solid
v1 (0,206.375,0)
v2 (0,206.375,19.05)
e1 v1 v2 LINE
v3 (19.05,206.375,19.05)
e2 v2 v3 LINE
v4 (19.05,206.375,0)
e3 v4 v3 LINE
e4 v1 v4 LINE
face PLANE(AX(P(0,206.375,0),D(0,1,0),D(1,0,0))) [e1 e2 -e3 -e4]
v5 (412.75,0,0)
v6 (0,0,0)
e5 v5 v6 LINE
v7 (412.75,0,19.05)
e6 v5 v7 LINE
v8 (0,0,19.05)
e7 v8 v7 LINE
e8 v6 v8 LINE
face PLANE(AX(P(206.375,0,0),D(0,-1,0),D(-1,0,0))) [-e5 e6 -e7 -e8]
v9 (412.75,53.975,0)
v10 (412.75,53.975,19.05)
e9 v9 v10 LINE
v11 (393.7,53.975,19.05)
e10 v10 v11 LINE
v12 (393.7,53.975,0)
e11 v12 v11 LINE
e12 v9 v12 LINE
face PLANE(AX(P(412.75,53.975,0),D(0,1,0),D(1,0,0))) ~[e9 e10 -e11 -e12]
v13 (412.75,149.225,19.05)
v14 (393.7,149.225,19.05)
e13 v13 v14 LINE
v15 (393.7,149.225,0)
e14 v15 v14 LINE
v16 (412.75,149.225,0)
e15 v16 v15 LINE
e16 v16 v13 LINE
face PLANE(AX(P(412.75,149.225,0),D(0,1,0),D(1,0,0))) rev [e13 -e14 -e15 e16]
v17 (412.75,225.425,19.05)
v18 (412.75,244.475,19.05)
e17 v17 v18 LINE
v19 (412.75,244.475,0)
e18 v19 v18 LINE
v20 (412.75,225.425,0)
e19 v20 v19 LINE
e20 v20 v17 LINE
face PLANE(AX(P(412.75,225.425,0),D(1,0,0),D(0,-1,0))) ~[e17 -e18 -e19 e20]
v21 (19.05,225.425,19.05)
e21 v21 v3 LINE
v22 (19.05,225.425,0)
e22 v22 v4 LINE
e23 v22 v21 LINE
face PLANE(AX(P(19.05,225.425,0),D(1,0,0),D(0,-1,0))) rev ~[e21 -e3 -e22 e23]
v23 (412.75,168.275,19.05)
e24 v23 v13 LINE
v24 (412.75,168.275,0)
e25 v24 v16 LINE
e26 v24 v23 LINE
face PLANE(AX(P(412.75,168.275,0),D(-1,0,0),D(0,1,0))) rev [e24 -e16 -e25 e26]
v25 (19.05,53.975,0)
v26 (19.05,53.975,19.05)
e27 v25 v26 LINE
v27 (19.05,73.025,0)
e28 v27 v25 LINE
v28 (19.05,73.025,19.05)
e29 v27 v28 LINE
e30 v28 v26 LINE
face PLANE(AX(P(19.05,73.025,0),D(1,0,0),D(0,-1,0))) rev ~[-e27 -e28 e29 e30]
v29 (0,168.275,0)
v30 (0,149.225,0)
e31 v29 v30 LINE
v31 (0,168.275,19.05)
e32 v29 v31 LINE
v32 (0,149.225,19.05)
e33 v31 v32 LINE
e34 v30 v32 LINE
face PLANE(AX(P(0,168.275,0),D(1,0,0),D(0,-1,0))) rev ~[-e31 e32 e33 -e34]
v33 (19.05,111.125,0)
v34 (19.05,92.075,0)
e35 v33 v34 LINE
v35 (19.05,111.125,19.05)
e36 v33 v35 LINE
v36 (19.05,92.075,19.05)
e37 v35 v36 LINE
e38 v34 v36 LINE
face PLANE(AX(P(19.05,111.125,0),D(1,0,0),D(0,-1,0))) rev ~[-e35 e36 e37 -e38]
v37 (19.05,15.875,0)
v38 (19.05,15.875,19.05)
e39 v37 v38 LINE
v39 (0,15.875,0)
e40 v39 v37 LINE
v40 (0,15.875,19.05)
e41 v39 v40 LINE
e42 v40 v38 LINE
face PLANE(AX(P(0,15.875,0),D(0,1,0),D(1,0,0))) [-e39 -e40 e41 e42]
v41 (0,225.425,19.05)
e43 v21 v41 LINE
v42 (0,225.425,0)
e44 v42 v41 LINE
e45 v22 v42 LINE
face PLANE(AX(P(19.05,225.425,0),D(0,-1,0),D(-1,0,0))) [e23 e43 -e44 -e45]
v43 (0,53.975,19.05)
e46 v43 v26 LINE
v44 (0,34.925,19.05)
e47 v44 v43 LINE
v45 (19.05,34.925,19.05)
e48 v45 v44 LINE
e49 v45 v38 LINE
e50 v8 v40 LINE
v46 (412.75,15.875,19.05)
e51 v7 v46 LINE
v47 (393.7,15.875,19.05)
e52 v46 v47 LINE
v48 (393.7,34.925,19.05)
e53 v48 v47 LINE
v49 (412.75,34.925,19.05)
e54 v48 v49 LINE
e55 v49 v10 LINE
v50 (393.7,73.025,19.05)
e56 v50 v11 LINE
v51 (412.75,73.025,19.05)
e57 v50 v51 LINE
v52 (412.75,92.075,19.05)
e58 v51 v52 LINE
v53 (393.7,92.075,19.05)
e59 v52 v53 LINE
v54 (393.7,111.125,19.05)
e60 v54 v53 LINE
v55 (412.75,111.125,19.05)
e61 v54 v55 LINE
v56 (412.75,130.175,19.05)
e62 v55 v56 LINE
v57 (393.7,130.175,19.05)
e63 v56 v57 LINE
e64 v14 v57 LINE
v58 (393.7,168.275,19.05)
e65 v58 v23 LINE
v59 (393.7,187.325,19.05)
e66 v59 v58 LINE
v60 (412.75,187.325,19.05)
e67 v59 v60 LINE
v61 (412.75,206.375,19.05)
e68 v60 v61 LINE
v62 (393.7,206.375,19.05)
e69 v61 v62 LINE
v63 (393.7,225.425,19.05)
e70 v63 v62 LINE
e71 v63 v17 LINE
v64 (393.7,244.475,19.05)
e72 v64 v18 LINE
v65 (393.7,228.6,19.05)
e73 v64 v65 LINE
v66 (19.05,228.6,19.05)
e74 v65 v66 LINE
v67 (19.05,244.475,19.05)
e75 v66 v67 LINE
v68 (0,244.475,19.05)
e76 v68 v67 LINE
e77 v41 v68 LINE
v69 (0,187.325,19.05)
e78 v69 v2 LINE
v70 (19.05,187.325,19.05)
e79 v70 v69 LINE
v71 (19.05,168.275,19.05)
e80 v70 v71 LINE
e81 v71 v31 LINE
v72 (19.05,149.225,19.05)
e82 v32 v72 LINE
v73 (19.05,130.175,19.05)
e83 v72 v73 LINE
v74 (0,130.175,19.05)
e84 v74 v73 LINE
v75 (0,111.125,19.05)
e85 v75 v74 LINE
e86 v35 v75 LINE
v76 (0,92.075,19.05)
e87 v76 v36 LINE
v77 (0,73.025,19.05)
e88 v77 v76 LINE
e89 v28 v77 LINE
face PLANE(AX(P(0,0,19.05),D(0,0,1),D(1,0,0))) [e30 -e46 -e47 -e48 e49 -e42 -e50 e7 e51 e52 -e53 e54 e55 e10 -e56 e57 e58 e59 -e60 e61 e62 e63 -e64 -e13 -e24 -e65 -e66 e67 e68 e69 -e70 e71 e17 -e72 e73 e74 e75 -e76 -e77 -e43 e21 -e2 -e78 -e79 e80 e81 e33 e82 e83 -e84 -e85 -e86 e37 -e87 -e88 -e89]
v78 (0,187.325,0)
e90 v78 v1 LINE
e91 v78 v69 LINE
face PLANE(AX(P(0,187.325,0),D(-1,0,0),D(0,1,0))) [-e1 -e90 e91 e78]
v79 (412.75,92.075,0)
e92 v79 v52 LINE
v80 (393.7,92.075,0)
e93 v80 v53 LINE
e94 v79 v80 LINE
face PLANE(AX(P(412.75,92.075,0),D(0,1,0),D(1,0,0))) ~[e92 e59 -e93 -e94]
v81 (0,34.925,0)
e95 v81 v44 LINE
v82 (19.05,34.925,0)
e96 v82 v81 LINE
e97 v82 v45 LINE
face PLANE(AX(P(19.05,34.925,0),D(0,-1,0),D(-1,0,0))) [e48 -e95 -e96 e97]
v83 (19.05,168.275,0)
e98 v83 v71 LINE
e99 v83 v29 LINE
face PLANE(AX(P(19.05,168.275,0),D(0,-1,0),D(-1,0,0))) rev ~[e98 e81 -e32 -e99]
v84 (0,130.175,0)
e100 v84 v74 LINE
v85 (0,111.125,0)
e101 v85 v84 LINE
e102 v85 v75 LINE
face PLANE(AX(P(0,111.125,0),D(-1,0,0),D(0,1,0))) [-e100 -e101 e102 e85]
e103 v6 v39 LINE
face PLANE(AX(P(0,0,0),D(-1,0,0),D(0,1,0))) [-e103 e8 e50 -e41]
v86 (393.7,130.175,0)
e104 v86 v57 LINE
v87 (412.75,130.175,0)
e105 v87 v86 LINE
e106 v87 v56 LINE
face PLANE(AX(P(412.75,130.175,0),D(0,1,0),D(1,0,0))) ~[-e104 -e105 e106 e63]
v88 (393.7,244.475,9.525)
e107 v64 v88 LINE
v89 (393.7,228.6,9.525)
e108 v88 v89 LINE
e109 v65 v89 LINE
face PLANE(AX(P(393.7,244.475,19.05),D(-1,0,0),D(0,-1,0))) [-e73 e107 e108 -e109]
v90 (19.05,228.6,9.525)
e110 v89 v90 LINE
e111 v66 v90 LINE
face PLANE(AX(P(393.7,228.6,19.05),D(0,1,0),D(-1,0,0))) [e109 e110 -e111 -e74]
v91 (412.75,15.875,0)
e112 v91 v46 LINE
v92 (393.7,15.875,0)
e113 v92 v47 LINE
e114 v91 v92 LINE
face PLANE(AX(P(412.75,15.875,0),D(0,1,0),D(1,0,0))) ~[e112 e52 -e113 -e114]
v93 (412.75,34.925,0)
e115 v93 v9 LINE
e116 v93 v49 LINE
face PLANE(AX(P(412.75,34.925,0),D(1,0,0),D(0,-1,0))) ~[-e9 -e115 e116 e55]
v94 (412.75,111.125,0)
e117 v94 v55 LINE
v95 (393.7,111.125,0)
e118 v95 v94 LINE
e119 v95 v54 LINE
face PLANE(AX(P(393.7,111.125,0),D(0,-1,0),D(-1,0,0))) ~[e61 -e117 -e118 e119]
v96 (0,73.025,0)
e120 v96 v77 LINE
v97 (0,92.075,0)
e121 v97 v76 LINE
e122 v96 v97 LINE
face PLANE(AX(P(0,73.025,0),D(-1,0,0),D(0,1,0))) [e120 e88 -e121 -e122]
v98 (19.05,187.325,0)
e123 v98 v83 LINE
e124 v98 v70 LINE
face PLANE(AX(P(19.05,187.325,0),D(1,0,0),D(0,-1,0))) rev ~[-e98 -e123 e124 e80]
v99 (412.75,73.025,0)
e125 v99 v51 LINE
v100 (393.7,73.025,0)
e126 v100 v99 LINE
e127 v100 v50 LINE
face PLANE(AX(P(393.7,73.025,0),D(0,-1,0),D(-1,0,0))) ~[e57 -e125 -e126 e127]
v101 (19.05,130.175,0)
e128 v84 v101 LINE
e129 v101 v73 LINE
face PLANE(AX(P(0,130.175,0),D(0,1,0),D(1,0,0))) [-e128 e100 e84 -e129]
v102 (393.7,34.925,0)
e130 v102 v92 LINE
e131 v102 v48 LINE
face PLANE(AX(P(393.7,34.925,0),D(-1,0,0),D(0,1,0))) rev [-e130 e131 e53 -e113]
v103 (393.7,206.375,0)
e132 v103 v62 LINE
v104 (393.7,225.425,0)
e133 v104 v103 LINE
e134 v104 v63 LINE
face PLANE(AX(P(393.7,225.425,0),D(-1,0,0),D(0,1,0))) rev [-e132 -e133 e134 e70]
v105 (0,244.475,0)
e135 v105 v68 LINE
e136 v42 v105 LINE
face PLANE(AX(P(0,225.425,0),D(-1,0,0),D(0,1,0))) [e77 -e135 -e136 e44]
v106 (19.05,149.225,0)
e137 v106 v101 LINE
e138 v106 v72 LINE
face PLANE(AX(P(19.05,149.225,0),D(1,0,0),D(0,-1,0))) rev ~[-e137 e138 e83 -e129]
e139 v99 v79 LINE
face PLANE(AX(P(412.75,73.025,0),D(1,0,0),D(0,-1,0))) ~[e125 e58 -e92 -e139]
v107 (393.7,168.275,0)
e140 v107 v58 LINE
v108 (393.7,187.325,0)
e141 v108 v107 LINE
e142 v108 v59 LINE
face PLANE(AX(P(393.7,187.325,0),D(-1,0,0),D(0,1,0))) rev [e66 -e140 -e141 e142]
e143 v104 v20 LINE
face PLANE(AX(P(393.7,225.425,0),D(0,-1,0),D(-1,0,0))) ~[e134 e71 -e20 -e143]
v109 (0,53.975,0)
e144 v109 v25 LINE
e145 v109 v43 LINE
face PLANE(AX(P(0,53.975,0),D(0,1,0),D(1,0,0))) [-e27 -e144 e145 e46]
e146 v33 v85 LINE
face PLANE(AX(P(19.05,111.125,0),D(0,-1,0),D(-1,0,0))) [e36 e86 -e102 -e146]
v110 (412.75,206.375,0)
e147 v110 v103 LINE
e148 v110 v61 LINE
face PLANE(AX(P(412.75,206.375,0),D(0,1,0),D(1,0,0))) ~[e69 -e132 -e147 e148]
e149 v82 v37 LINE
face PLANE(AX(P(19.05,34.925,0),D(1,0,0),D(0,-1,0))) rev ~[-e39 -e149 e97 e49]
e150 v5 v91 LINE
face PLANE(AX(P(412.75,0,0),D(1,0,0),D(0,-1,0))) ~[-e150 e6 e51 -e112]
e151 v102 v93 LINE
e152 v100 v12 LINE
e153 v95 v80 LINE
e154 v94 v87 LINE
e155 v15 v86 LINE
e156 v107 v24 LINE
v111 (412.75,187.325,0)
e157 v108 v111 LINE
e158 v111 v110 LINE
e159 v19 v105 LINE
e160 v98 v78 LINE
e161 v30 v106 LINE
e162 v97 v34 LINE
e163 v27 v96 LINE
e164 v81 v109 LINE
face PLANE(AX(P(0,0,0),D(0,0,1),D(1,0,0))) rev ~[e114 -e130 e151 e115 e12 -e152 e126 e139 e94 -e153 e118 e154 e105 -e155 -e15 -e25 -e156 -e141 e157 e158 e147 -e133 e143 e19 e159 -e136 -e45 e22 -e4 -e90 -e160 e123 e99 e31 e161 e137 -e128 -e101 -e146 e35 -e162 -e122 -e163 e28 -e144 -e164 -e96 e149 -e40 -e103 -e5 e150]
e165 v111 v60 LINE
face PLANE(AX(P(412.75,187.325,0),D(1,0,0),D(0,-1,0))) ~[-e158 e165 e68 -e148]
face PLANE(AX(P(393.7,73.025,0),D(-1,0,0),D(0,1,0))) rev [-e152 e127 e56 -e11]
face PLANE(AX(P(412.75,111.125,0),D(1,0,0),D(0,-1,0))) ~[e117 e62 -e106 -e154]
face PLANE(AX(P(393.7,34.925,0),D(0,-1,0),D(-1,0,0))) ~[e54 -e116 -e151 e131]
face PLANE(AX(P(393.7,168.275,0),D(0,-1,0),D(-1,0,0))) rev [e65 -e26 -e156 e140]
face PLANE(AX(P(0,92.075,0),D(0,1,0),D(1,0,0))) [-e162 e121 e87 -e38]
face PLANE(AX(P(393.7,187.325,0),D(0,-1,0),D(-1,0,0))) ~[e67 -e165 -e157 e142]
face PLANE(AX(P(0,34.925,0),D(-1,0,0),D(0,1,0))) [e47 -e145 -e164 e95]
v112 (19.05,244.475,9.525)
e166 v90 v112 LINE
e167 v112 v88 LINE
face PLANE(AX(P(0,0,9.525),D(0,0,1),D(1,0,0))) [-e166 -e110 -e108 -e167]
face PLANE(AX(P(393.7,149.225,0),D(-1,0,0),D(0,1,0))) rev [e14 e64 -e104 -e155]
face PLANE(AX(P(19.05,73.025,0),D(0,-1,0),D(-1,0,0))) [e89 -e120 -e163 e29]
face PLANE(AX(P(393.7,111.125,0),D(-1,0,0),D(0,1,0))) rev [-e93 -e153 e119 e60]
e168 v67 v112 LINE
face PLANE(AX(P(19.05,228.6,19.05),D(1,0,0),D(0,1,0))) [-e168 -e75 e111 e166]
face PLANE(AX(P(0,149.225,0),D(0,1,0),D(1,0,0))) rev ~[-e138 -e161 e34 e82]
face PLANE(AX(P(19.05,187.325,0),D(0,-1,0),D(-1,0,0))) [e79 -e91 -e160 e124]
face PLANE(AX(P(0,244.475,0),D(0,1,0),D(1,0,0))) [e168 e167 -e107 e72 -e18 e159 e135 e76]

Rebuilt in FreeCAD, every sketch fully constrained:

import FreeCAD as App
import Part
import Sketcher
from FreeCAD import Vector
Q = App.Units.Quantity


def add_polygon(sketch, points):
    """Adds a closed chain of lines whose ends are joined by coincident constraints."""
    first, n = sketch.GeometryCount, len(points)
    for a, b in zip(points, points[1:] + points[:1]):
        sketch.addGeometry(Part.LineSegment(App.Vector(*a, 0), App.Vector(*b, 0)), False)
    for i in range(n):
        sketch.addConstraint(Sketcher.Constraint("Coincident", first + i, 2, first + (i + 1) % n, 1))

doc = App.newDocument("Part")
body = doc.addObject("PartDesign::Body", "Body")

# Sketch on XY plane
sketch1 = body.newObject("Sketcher::SketchObject", "Sketch")
sketch1.AttachmentSupport = (doc.getObject("XY_Plane"), [""])
sketch1.MapMode = "FlatFace"
add_polygon(sketch1, [(0, 244.475), (0, 225.425), (19.05, 225.425), (19.05, 206.375), (0, 206.375), (0, 187.325), (19.05, 187.325), (19.05, 168.275), (0, 168.275), (0, 149.225), (19.05, 149.225), (19.05, 130.175), (0, 130.175), (0, 111.125), (19.05, 111.125), (19.05, 92.075), (0, 92.075), (0, 73.025), (19.05, 73.025), (19.05, 53.975), (0, 53.975), (0, 34.925), (19.05, 34.925), (19.05, 15.875), (0, 15.875), (0, 0), (206.375, 0), (206.375, 244.475)])  # lines 0-27
sketch1.addConstraint([
    Sketcher.Constraint("Vertical", 0),
    Sketcher.Constraint("Horizontal", 1),
    Sketcher.Constraint("Vertical", 2),
    Sketcher.Constraint("Horizontal", 3),
    Sketcher.Constraint("Vertical", 4),
    Sketcher.Constraint("Horizontal", 5),
    Sketcher.Constraint("Vertical", 6),
    Sketcher.Constraint("Horizontal", 7),
    Sketcher.Constraint("Vertical", 8),
    Sketcher.Constraint("Horizontal", 9),
    Sketcher.Constraint("Vertical", 10),
    Sketcher.Constraint("Horizontal", 11),
    Sketcher.Constraint("Vertical", 12),
    Sketcher.Constraint("Horizontal", 13),
    Sketcher.Constraint("Vertical", 14),
    Sketcher.Constraint("Horizontal", 15),
    Sketcher.Constraint("Vertical", 16),
    Sketcher.Constraint("Horizontal", 17),
    Sketcher.Constraint("Vertical", 18),
    Sketcher.Constraint("Horizontal", 19),
    Sketcher.Constraint("Vertical", 20),
    Sketcher.Constraint("Horizontal", 21),
    Sketcher.Constraint("Vertical", 22),
    Sketcher.Constraint("Horizontal", 23),
    Sketcher.Constraint("Vertical", 24),
    Sketcher.Constraint("Horizontal", 25),
    Sketcher.Constraint("Vertical", 26),
    Sketcher.Constraint("Horizontal", 27),
    Sketcher.Constraint("Coincident", 24, 2, -1, 1),
    Sketcher.Constraint("PointOnObject", 0, 2, -2),
    Sketcher.Constraint("PointOnObject", 3, 2, -2),
    Sketcher.Constraint("PointOnObject", 7, 2, -2),
    Sketcher.Constraint("PointOnObject", 11, 2, -2),
    Sketcher.Constraint("PointOnObject", 15, 2, -2),
    Sketcher.Constraint("PointOnObject", 19, 2, -2),
    Sketcher.Constraint("Vertical", 2, 2, 5, 2),
    Sketcher.Constraint("Vertical", 6, 2, 9, 2),
    Sketcher.Constraint("Vertical", 10, 2, 13, 2),
    Sketcher.Constraint("Vertical", 14, 2, 17, 2),
    Sketcher.Constraint("Vertical", 18, 2, 21, 2),
    Sketcher.Constraint("Equal", 23, 0),
    Sketcher.Constraint("Equal", 0, 2),
    Sketcher.Constraint("Equal", 2, 4),
    Sketcher.Constraint("Equal", 4, 6),
    Sketcher.Constraint("Equal", 6, 8),
    Sketcher.Constraint("Equal", 8, 10),
    Sketcher.Constraint("Equal", 10, 12),
    Sketcher.Constraint("Equal", 12, 14),
    Sketcher.Constraint("Equal", 14, 16),
    Sketcher.Constraint("Equal", 16, 18),
    Sketcher.Constraint("Equal", 18, 20),
    Sketcher.Constraint("Equal", 20, 22),
    Sketcher.Constraint("DistanceX", 1, 1, 1, 2, Q("0.75 in")),
    Sketcher.Constraint("DistanceX", 25, 1, 25, 2, Q("8.125 in")),
    Sketcher.Constraint("DistanceY", 26, 1, 26, 2, Q("9.625 in")),
])
pad1 = body.newObject("PartDesign::Pad", "Pad")
pad1.Profile = sketch1
pad1.Length = Q("0.75 in")
doc.recompute()

datumplane = body.newObject("PartDesign::Plane", "DatumPlane")
datumplane.AttachmentSupport = (doc.getObject("YZ_Plane"), [""])
datumplane.MapMode = "FlatFace"
datumplane.AttachmentOffset = App.Placement(Vector(0, 0, 8.125 * 25.4), App.Rotation())
mirrored = body.newObject("PartDesign::Mirrored", "Mirrored")
mirrored.Originals = [pad1]
mirrored.MirrorPlane = (datumplane, [""])
body.Tip = mirrored

# Sketch on XY plane
sketch2 = body.newObject("Sketcher::SketchObject", "Sketch001")
sketch2.AttachmentSupport = (doc.getObject("XY_Plane"), [""])
sketch2.MapMode = "FlatFace"
sketch2.AttachmentOffset = App.Placement(Vector(0, 0, 0.75 * 25.4), App.Rotation())
add_polygon(sketch2, [(393.7, 244.475), (19.05, 244.475), (19.05, 228.6), (393.7, 228.6)])  # lines 0-3
sketch2.addConstraint([
    Sketcher.Constraint("Horizontal", 0),
    Sketcher.Constraint("Vertical", 1),
    Sketcher.Constraint("Horizontal", 2),
    Sketcher.Constraint("Vertical", 3),
    Sketcher.Constraint("DistanceY", 1, 2, 1, 1, Q("0.625 in")),
    Sketcher.Constraint("DistanceX", -1, 1, 0, 2, Q("0.75 in")),
    Sketcher.Constraint("DistanceY", -1, 1, 1, 2, Q("9 in")),
    Sketcher.Constraint("DistanceX", 0, 2, 0, 1, Q("14.75 in")),
])
pocket1 = body.newObject("PartDesign::Pocket", "Pocket")
pocket1.Profile = sketch2
pocket1.Length = Q("0.375 in")

doc.recompute()
